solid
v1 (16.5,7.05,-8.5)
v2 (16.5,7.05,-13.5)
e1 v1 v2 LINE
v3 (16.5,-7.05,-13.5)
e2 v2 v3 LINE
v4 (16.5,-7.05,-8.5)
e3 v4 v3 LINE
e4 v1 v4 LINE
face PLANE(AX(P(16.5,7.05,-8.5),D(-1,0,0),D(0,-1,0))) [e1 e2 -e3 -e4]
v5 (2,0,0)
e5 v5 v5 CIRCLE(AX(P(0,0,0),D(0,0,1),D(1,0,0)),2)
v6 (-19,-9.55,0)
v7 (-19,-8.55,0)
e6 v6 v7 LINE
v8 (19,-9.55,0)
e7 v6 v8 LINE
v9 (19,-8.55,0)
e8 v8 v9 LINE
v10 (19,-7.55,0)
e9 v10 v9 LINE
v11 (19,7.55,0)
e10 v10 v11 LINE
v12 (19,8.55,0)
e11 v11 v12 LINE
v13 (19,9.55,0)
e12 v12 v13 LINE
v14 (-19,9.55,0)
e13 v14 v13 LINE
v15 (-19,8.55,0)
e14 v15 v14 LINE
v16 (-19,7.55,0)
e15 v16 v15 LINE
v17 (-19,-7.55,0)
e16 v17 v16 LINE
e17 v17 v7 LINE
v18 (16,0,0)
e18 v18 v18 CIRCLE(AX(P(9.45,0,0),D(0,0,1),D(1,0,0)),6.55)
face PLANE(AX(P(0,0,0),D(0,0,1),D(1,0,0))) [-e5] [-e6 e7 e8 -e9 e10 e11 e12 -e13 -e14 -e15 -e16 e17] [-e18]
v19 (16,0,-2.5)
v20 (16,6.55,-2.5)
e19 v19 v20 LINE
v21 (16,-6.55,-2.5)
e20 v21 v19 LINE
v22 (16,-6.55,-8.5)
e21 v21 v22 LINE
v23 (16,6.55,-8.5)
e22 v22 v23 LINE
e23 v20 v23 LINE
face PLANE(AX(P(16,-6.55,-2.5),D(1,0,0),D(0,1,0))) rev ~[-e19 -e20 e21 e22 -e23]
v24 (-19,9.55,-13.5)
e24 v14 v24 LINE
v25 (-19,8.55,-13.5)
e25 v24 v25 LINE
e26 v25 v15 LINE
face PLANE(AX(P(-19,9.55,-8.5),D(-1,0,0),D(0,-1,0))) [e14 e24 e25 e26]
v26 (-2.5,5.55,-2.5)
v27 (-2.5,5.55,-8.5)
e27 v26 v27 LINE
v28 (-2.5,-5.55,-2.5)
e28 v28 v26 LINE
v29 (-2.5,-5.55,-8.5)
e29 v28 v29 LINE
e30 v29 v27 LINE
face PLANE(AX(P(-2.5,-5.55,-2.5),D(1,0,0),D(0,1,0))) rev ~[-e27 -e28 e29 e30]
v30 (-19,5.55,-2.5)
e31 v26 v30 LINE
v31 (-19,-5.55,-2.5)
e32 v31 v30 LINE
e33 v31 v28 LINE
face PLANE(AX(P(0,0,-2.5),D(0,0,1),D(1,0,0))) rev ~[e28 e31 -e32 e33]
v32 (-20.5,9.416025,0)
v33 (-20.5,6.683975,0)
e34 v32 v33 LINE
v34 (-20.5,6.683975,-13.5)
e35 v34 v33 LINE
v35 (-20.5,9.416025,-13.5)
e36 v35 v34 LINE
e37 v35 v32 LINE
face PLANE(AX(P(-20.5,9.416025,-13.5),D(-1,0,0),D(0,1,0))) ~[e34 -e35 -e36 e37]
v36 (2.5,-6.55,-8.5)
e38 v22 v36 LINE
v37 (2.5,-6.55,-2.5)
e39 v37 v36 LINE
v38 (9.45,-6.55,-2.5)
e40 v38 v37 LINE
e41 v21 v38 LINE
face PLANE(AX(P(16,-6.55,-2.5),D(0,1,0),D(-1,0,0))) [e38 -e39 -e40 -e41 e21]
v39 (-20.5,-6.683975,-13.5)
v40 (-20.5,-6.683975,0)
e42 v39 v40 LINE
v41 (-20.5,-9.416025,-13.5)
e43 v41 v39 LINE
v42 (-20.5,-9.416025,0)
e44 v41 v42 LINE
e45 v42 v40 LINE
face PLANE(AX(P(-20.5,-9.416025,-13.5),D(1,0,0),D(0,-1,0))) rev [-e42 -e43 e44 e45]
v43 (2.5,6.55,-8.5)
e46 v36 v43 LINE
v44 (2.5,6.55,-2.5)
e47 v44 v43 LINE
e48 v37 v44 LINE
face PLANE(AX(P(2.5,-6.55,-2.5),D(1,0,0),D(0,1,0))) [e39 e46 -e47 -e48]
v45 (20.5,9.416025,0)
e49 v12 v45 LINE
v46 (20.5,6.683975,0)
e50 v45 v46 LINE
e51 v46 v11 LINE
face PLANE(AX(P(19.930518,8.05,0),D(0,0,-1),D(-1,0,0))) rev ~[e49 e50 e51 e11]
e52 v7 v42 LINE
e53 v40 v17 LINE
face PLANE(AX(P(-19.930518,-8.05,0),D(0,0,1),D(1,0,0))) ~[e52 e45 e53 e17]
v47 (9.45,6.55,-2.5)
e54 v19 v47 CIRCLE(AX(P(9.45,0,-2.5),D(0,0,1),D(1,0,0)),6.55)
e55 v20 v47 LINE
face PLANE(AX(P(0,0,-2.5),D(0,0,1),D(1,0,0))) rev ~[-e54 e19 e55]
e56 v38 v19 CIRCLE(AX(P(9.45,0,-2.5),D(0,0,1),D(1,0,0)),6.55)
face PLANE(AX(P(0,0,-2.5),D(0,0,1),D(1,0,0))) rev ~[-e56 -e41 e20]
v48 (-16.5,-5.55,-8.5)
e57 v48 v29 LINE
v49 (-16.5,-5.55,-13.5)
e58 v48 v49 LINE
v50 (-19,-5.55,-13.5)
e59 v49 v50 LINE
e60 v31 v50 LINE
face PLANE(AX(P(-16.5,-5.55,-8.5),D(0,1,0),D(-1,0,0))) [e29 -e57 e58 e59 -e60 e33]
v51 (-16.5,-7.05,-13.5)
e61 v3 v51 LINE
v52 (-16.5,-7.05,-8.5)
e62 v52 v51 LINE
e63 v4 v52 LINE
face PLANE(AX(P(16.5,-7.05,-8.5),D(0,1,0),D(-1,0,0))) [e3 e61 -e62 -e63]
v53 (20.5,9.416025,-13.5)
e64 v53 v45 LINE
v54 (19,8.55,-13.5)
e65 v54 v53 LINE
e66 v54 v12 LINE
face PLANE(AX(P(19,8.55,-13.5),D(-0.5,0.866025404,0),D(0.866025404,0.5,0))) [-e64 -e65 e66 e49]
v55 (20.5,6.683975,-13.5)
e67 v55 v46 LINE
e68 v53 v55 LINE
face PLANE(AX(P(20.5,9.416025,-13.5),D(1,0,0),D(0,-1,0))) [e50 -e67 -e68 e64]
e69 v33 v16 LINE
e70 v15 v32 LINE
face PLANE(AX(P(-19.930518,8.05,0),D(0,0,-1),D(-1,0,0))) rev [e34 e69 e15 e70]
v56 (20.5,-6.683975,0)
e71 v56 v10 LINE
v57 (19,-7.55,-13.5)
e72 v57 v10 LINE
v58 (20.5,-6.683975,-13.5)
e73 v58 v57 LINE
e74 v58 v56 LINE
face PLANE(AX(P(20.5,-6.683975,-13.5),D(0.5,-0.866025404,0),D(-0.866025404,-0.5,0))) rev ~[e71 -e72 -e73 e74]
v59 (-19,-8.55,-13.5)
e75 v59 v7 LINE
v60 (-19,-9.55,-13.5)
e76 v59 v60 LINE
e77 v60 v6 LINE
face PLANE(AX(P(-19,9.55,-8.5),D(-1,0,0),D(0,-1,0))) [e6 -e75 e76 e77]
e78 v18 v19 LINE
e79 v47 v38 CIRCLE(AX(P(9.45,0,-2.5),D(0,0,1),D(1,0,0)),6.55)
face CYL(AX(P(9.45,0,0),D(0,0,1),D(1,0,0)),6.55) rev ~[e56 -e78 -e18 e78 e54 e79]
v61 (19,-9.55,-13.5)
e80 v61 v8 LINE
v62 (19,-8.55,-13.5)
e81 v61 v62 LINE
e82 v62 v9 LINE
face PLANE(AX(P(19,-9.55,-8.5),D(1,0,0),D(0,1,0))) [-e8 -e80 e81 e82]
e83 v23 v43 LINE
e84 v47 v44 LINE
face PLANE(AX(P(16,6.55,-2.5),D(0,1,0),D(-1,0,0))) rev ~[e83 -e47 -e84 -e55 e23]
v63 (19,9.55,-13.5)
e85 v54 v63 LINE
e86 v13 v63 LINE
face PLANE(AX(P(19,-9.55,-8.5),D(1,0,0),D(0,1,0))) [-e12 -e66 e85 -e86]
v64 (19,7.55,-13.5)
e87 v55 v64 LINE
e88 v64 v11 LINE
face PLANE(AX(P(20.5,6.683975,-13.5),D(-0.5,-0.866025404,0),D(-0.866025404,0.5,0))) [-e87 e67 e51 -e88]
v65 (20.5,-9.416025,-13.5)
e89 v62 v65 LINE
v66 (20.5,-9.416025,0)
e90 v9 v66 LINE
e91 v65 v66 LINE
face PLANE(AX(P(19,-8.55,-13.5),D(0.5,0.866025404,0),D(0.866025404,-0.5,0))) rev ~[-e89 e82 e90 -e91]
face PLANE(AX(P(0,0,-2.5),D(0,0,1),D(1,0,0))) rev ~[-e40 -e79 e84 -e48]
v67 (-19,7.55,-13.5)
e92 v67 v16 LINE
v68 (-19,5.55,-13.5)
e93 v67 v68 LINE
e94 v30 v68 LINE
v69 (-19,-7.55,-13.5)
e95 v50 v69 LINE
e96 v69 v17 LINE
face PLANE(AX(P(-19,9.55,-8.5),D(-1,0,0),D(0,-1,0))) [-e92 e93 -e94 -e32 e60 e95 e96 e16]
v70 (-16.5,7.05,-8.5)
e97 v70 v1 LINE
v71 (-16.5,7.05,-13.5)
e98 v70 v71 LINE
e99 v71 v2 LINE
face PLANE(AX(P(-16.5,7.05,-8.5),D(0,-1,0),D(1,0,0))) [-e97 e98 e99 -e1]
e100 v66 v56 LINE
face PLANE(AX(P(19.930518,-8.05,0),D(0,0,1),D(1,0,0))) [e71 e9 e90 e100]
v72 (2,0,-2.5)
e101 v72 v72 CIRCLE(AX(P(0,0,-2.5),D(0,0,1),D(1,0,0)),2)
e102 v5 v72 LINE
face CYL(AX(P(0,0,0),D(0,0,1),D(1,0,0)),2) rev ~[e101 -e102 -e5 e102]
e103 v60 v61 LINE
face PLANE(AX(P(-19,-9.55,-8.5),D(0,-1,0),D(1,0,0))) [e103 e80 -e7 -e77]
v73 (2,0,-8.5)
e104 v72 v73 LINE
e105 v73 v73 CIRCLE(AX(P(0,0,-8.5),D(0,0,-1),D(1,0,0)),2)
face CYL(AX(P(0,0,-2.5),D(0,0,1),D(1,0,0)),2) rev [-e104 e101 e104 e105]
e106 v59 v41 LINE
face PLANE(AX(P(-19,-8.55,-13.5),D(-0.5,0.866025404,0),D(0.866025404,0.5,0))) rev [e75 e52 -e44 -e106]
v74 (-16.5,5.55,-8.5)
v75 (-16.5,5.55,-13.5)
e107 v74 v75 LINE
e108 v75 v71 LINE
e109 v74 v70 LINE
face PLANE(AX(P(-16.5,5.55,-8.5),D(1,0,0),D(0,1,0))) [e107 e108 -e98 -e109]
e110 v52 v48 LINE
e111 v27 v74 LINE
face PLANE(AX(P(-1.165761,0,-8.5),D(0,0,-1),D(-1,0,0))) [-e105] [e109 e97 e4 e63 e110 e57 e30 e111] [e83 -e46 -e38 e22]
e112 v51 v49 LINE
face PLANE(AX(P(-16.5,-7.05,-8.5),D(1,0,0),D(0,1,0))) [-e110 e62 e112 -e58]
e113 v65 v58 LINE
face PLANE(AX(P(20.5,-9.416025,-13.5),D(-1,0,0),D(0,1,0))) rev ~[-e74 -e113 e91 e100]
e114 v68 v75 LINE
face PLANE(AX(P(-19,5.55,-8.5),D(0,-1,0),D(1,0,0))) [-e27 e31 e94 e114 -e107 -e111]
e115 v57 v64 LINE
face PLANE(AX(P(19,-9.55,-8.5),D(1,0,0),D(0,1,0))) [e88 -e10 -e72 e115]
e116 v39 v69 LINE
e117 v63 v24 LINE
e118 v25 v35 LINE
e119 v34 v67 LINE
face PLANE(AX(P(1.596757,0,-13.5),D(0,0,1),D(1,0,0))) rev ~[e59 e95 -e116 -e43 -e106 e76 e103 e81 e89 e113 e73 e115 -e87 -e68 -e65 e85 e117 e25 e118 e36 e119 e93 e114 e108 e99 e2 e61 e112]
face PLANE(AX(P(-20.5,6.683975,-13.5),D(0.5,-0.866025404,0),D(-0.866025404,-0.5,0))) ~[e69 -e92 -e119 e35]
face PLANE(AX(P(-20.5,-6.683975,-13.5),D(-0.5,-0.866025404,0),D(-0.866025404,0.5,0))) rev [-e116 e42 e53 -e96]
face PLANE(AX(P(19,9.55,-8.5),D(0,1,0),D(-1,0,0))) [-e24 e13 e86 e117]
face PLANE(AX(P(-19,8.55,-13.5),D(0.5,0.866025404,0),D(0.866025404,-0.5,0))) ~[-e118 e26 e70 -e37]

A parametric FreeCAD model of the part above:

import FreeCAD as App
import Part
import Sketcher
Q = App.Units.Quantity

doc = App.newDocument("Part")
params = doc.addObject("Spreadsheet::Sheet", "Params")
for row, (alias, value) in enumerate([
    ("sketch1_diameter", "4 mm"),
    ("sketch1_diameter2", "13.1 mm"),
    ("sketch1_width", "38 mm"),
    ("sketch1_height", "19.1 mm"),
    ("pad1_length", "2.5 mm"),
    ("sketch2_diameter", "4 mm"),
    ("sketch2_width", "38 mm"),
    ("sketch2_height", "4 mm"),
    ("sketch2_width2", "16.5 mm"),
    ("sketch2_width3", "13.5 mm"),
    ("pad2_length", "6 mm"),
    ("sketch3_width", "38 mm"),
    ("sketch3_width2", "33 mm"),
    ("sketch3_height", "4 mm"),
    ("sketch3_height2", "19.1 mm"),
    ("sketch3_height3", "1.5 mm"),
    ("pad3_length", "5 mm"),
    ("sketch4_height", "1 mm"),
    ("pad4_length", "13.5 mm"),
], start=1):
    params.set(f"A{row}", alias)
    params.set(f"B{row}", "=" + value)
    params.setAlias(f"B{row}", alias)

body = doc.addObject("PartDesign::Body", "Body")

sketch1 = body.newObject("Sketcher::SketchObject", "Sketch")
sketch1.AttachmentSupport = (doc.getObject("XY_Plane"), [""])
sketch1.MapMode = "FlatFace"
sketch1.addGeometry(Part.LineSegment(App.Vector(-19, 9.55, 0), App.Vector(-19, -9.55, 0)), False)
sketch1.addGeometry(Part.LineSegment(App.Vector(-19, -9.55, 0), App.Vector(19, -9.55, 0)), False)
sketch1.addGeometry(Part.LineSegment(App.Vector(19, -9.55, 0), App.Vector(19, 9.55, 0)), False)
sketch1.addGeometry(Part.LineSegment(App.Vector(19, 9.55, 0), App.Vector(-19, 9.55, 0)), False)
sketch1.addGeometry(Part.Circle(App.Vector(0, 0, 0), App.Vector(0, 0, 1), 2), False)
sketch1.addGeometry(Part.Circle(App.Vector(9.45, 0, 0), App.Vector(0, 0, 1), 6.55), False)
sketch1.addConstraint(Sketcher.Constraint("Coincident", 0, 2, 1, 1))
sketch1.addConstraint(Sketcher.Constraint("Coincident", 1, 2, 2, 1))
sketch1.addConstraint(Sketcher.Constraint("Coincident", 2, 2, 3, 1))
sketch1.addConstraint(Sketcher.Constraint("Coincident", 3, 2, 0, 1))
sketch1.addConstraint(Sketcher.Constraint("Vertical", 0))
sketch1.addConstraint(Sketcher.Constraint("Horizontal", 1))
sketch1.addConstraint(Sketcher.Constraint("Vertical", 2))
sketch1.addConstraint(Sketcher.Constraint("Horizontal", 3))
sketch1.addConstraint(Sketcher.Constraint("Coincident", 4, 3, -1, 1))
sketch1.addConstraint(Sketcher.Constraint("Symmetric", 0, 2, 2, 2, -1, 1))
sketch1.addConstraint(Sketcher.Constraint("PointOnObject", 5, 3, -1))
sketch1.addConstraint(Sketcher.Constraint("Diameter", 4, 4.0))
sketch1.addConstraint(Sketcher.Constraint("Diameter", 5, 13.1))
sketch1.addConstraint(Sketcher.Constraint("DistanceX", 1, 1, 1, 2, 38.0))
sketch1.addConstraint(Sketcher.Constraint("DistanceY", 0, 2, 0, 1, 19.1))
sketch1.addConstraint(Sketcher.Constraint("DistanceX", -1, 1, 5, 3, 9.45))
sketch1.setExpression("Constraints[11]", "Params.sketch1_diameter")
sketch1.setExpression("Constraints[12]", "Params.sketch1_diameter2")
sketch1.setExpression("Constraints[13]", "Params.sketch1_width")
sketch1.setExpression("Constraints[14]", "Params.sketch1_height")
pad1 = body.newObject("PartDesign::Pad", "Pad")
pad1.Profile = sketch1
pad1.setExpression("Length", "Params.pad1_length")
pad1.Reversed = True

sketch2 = body.newObject("Sketcher::SketchObject", "Sketch001")
sketch2.AttachmentSupport = (doc.getObject("XY_Plane"), [""])
sketch2.MapMode = "FlatFace"
sketch2.AttachmentOffset = App.Placement(App.Vector(0, 0, -2.5), App.Rotation())
sketch2.addGeometry(Part.LineSegment(App.Vector(19, -9.55, 0), App.Vector(-19, -9.55, 0)), False)
sketch2.addGeometry(Part.LineSegment(App.Vector(-19, -9.55, 0), App.Vector(-19, -5.55, 0)), False)
sketch2.addGeometry(Part.LineSegment(App.Vector(-19, -5.55, 0), App.Vector(-2.5, -5.55, 0)), False)
sketch2.addGeometry(Part.LineSegment(App.Vector(-2.5, -5.55, 0), App.Vector(-2.5, 5.55, 0)), False)
sketch2.addGeometry(Part.LineSegment(App.Vector(-2.5, 5.55, 0), App.Vector(-19, 5.55, 0)), False)
sketch2.addGeometry(Part.LineSegment(App.Vector(-19, 5.55, 0), App.Vector(-19, 9.55, 0)), False)
sketch2.addGeometry(Part.LineSegment(App.Vector(-19, 9.55, 0), App.Vector(19, 9.55, 0)), False)
sketch2.addGeometry(Part.LineSegment(App.Vector(19, 9.55, 0), App.Vector(19, -9.55, 0)), False)
sketch2.addGeometry(Part.Circle(App.Vector(0, 0, 0), App.Vector(0, 0, 1), 2), False)
sketch2.addGeometry(Part.LineSegment(App.Vector(2.5, -6.55, 0), App.Vector(16, -6.55, 0)), False)
sketch2.addGeometry(Part.LineSegment(App.Vector(16, -6.55, 0), App.Vector(16, 6.55, 0)), False)
sketch2.addGeometry(Part.LineSegment(App.Vector(16, 6.55, 0), App.Vector(2.5, 6.55, 0)), False)
sketch2.addGeometry(Part.LineSegment(App.Vector(2.5, 6.55, 0), App.Vector(2.5, -6.55, 0)), False)
sketch2.addConstraint(Sketcher.Constraint("Coincident", 0, 2, 1, 1))
sketch2.addConstraint(Sketcher.Constraint("Coincident", 1, 2, 2, 1))
sketch2.addConstraint(Sketcher.Constraint("Coincident", 2, 2, 3, 1))
sketch2.addConstraint(Sketcher.Constraint("Coincident", 3, 2, 4, 1))
sketch2.addConstraint(Sketcher.Constraint("Coincident", 4, 2, 5, 1))
sketch2.addConstraint(Sketcher.Constraint("Coincident", 5, 2, 6, 1))
sketch2.addConstraint(Sketcher.Constraint("Coincident", 6, 2, 7, 1))
sketch2.addConstraint(Sketcher.Constraint("Coincident", 7, 2, 0, 1))
sketch2.addConstraint(Sketcher.Constraint("Coincident", 9, 2, 10, 1))
sketch2.addConstraint(Sketcher.Constraint("Coincident", 10, 2, 11, 1))
sketch2.addConstraint(Sketcher.Constraint("Coincident", 11, 2, 12, 1))
sketch2.addConstraint(Sketcher.Constraint("Coincident", 12, 2, 9, 1))
sketch2.addConstraint(Sketcher.Constraint("Horizontal", 0))
sketch2.addConstraint(Sketcher.Constraint("Vertical", 1))
sketch2.addConstraint(Sketcher.Constraint("Horizontal", 2))
sketch2.addConstraint(Sketcher.Constraint("Vertical", 3))
sketch2.addConstraint(Sketcher.Constraint("Horizontal", 4))
sketch2.addConstraint(Sketcher.Constraint("Vertical", 5))
sketch2.addConstraint(Sketcher.Constraint("Horizontal", 6))
sketch2.addConstraint(Sketcher.Constraint("Vertical", 7))
sketch2.addConstraint(Sketcher.Constraint("Horizontal", 9))
sketch2.addConstraint(Sketcher.Constraint("Vertical", 10))
sketch2.addConstraint(Sketcher.Constraint("Horizontal", 11))
sketch2.addConstraint(Sketcher.Constraint("Vertical", 12))
sketch2.addConstraint(Sketcher.Constraint("Coincident", 8, 3, -1, 1))
sketch2.addConstraint(Sketcher.Constraint("Symmetric", 0, 2, 6, 2, -1, 1))
sketch2.addConstraint(Sketcher.Constraint("Symmetric", 1, 2, 4, 2, -1))
sketch2.addConstraint(Sketcher.Constraint("Diameter", 8, 4.0))
sketch2.addConstraint(Sketcher.Constraint("DistanceX", 0, 2, 0, 1, 38.0))
sketch2.addConstraint(Sketcher.Constraint("DistanceY", 1, 1, 1, 2, 4.0))
sketch2.addConstraint(Sketcher.Constraint("DistanceX", 2, 1, 2, 2, 16.5))
sketch2.addConstraint(Sketcher.Constraint("DistanceX", 9, 1, 9, 2, 13.5))
sketch2.addConstraint(Sketcher.Constraint("DistanceY", 3, 1, 3, 2, 11.1))
sketch2.addConstraint(Sketcher.Constraint("DistanceY", 10, 1, 10, 2, 13.1))
sketch2.addConstraint(Sketcher.Constraint("DistanceX", -1, 1, 9, 2, 16.0))
sketch2.addConstraint(Sketcher.Constraint("DistanceY", 7, 2, 9, 2, 3.0))
sketch2.setExpression("Constraints[27]", "Params.sketch2_diameter")
sketch2.setExpression("Constraints[28]", "Params.sketch2_width")
sketch2.setExpression("Constraints[29]", "Params.sketch2_height")
sketch2.setExpression("Constraints[30]", "Params.sketch2_width2")
sketch2.setExpression("Constraints[31]", "Params.sketch2_width3")
pad2 = body.newObject("PartDesign::Pad", "Pad001")
pad2.Profile = sketch2
pad2.setExpression("Length", "Params.pad2_length")
pad2.Reversed = True

sketch3 = body.newObject("Sketcher::SketchObject", "Sketch002")
sketch3.AttachmentSupport = (doc.getObject("XY_Plane"), [""])
sketch3.MapMode = "FlatFace"
sketch3.AttachmentOffset = App.Placement(App.Vector(0, 0, -8.5), App.Rotation())
sketch3.addGeometry(Part.LineSegment(App.Vector(-16.5, 5.55, 0), App.Vector(-19, 5.55, 0)), False)
sketch3.addGeometry(Part.LineSegment(App.Vector(-19, 5.55, 0), App.Vector(-19, 9.55, 0)), False)
sketch3.addGeometry(Part.LineSegment(App.Vector(-19, 9.55, 0), App.Vector(19, 9.55, 0)), False)
sketch3.addGeometry(Part.LineSegment(App.Vector(19, 9.55, 0), App.Vector(19, -9.55, 0)), False)
sketch3.addGeometry(Part.LineSegment(App.Vector(19, -9.55, 0), App.Vector(-19, -9.55, 0)), False)
sketch3.addGeometry(Part.LineSegment(App.Vector(-19, -9.55, 0), App.Vector(-19, -5.55, 0)), False)
sketch3.addGeometry(Part.LineSegment(App.Vector(-19, -5.55, 0), App.Vector(-16.5, -5.55, 0)), False)
sketch3.addGeometry(Part.LineSegment(App.Vector(-16.5, -5.55, 0), App.Vector(-16.5, -7.05, 0)), False)
sketch3.addGeometry(Part.LineSegment(App.Vector(-16.5, -7.05, 0), App.Vector(16.5, -7.05, 0)), False)
sketch3.addGeometry(Part.LineSegment(App.Vector(16.5, -7.05, 0), App.Vector(16.5, 7.05, 0)), False)
sketch3.addGeometry(Part.LineSegment(App.Vector(16.5, 7.05, 0), App.Vector(-16.5, 7.05, 0)), False)
sketch3.addGeometry(Part.LineSegment(App.Vector(-16.5, 7.05, 0), App.Vector(-16.5, 5.55, 0)), False)
sketch3.addConstraint(Sketcher.Constraint("Coincident", 0, 2, 1, 1))
sketch3.addConstraint(Sketcher.Constraint("Coincident", 1, 2, 2, 1))
sketch3.addConstraint(Sketcher.Constraint("Coincident", 2, 2, 3, 1))
sketch3.addConstraint(Sketcher.Constraint("Coincident", 3, 2, 4, 1))
sketch3.addConstraint(Sketcher.Constraint("Coincident", 4, 2, 5, 1))
sketch3.addConstraint(Sketcher.Constraint("Coincident", 5, 2, 6, 1))
sketch3.addConstraint(Sketcher.Constraint("Coincident", 6, 2, 7, 1))
sketch3.addConstraint(Sketcher.Constraint("Coincident", 7, 2, 8, 1))
sketch3.addConstraint(Sketcher.Constraint("Coincident", 8, 2, 9, 1))
sketch3.addConstraint(Sketcher.Constraint("Coincident", 9, 2, 10, 1))
sketch3.addConstraint(Sketcher.Constraint("Coincident", 10, 2, 11, 1))
sketch3.addConstraint(Sketcher.Constraint("Coincident", 11, 2, 0, 1))
sketch3.addConstraint(Sketcher.Constraint("Horizontal", 0))
sketch3.addConstraint(Sketcher.Constraint("Vertical", 1))
sketch3.addConstraint(Sketcher.Constraint("Horizontal", 2))
sketch3.addConstraint(Sketcher.Constraint("Vertical", 3))
sketch3.addConstraint(Sketcher.Constraint("Horizontal", 4))
sketch3.addConstraint(Sketcher.Constraint("Vertical", 5))
sketch3.addConstraint(Sketcher.Constraint("Horizontal", 6))
sketch3.addConstraint(Sketcher.Constraint("Vertical", 7))
sketch3.addConstraint(Sketcher.Constraint("Horizontal", 8))
sketch3.addConstraint(Sketcher.Constraint("Vertical", 9))
sketch3.addConstraint(Sketcher.Constraint("Horizontal", 10))
sketch3.addConstraint(Sketcher.Constraint("Vertical", 11))
sketch3.addConstraint(Sketcher.Constraint("Symmetric", 1, 2, 3, 2, -1, 1))
sketch3.addConstraint(Sketcher.Constraint("Symmetric", 7, 2, 9, 2, -1, 1))
sketch3.addConstraint(Sketcher.Constraint("Symmetric", 0, 2, 5, 2, -1))
sketch3.addConstraint(Sketcher.Constraint("Vertical", 7, 2, 10, 2))
sketch3.addConstraint(Sketcher.Constraint("DistanceX", 2, 1, 2, 2, 38.0))
sketch3.addConstraint(Sketcher.Constraint("DistanceX", 8, 1, 8, 2, 33.0))
sketch3.addConstraint(Sketcher.Constraint("DistanceY", 1, 1, 1, 2, 4.0))
sketch3.addConstraint(Sketcher.Constraint("DistanceY", 3, 2, 3, 1, 19.1))
sketch3.addConstraint(Sketcher.Constraint("DistanceY", 7, 2, 7, 1, 1.5))
sketch3.setExpression("Constraints[28]", "Params.sketch3_width")
sketch3.setExpression("Constraints[29]", "Params.sketch3_width2")
sketch3.setExpression("Constraints[30]", "Params.sketch3_height")
sketch3.setExpression("Constraints[31]", "Params.sketch3_height2")
sketch3.setExpression("Constraints[32]", "Params.sketch3_height3")
pad3 = body.newObject("PartDesign::Pad", "Pad002")
pad3.Profile = sketch3
pad3.setExpression("Length", "Params.pad3_length")
pad3.Reversed = True

sketch4 = body.newObject("Sketcher::SketchObject", "Sketch003")
sketch4.AttachmentSupport = (doc.getObject("XY_Plane"), [""])
sketch4.MapMode = "FlatFace"
sketch4.AttachmentOffset = App.Placement(App.Vector(0, 0, -13.5), App.Rotation())
sketch4.addGeometry(Part.LineSegment(App.Vector(19, 8.55, 0), App.Vector(20.5, 9.416025, 0)), False)
sketch4.addGeometry(Part.LineSegment(App.Vector(20.5, 9.416025, 0), App.Vector(20.5, 6.683975, 0)), False)
sketch4.addGeometry(Part.LineSegment(App.Vector(20.5, 6.683975, 0), App.Vector(19, 7.55, 0)), False)
sketch4.addGeometry(Part.LineSegment(App.Vector(19, 7.55, 0), App.Vector(19, 8.55, 0)), False)
sketch4.addGeometry(Part.LineSegment(App.Vector(19, -8.55, 0), App.Vector(19, -7.55, 0)), False)
sketch4.addGeometry(Part.LineSegment(App.Vector(19, -7.55, 0), App.Vector(20.5, -6.683975, 0)), False)
sketch4.addGeometry(Part.LineSegment(App.Vector(20.5, -6.683975, 0), App.Vector(20.5, -9.416025, 0)), False)
sketch4.addGeometry(Part.LineSegment(App.Vector(20.5, -9.416025, 0), App.Vector(19, -8.55, 0)), False)
sketch4.addConstraint(Sketcher.Constraint("Coincident", 0, 2, 1, 1))
sketch4.addConstraint(Sketcher.Constraint("Coincident", 1, 2, 2, 1))
sketch4.addConstraint(Sketcher.Constraint("Coincident", 2, 2, 3, 1))
sketch4.addConstraint(Sketcher.Constraint("Coincident", 3, 2, 0, 1))
sketch4.addConstraint(Sketcher.Constraint("Coincident", 4, 2, 5, 1))
sketch4.addConstraint(Sketcher.Constraint("Coincident", 5, 2, 6, 1))
sketch4.addConstraint(Sketcher.Constraint("Coincident", 6, 2, 7, 1))
sketch4.addConstraint(Sketcher.Constraint("Coincident", 7, 2, 4, 1))
sketch4.addConstraint(Sketcher.Constraint("Vertical", 1))
sketch4.addConstraint(Sketcher.Constraint("Vertical", 3))
sketch4.addConstraint(Sketcher.Constraint("Vertical", 4))
sketch4.addConstraint(Sketcher.Constraint("Vertical", 6))
sketch4.addConstraint(Sketcher.Constraint("Symmetric", 2, 2, 4, 2, -1))
sketch4.addConstraint(Sketcher.Constraint("Symmetric", 1, 2, 5, 2, -1))
sketch4.addConstraint(Sketcher.Constraint("Parallel", 0, 5))
sketch4.addConstraint(Sketcher.Constraint("Parallel", 2, 7))
sketch4.addConstraint(Sketcher.Constraint("Equal", 3, 4))
sketch4.addConstraint(Sketcher.Constraint("DistanceY", 3, 1, 3, 2, 1.0))
sketch4.addConstraint(Sketcher.Constraint("Angle", 0, Q("30 deg")))
sketch4.addConstraint(Sketcher.Constraint("DistanceX", -1, 1, 2, 2, 19.0))
sketch4.addConstraint(Sketcher.Constraint("DistanceX", -1, 1, 0, 2, 20.5))
sketch4.addConstraint(Sketcher.Constraint("DistanceY", 4, 2, 2, 2, 15.1))
sketch4.setExpression("Constraints[17]", "Params.sketch4_height")
pad4 = body.newObject("PartDesign::Pad", "Pad003")
pad4.Profile = sketch4
pad4.setExpression("Length", "Params.pad4_length")
doc.recompute()

mirrored = body.newObject("PartDesign::Mirrored", "Mirrored")
mirrored.Originals = [pad4]
mirrored.MirrorPlane = (doc.getObject("YZ_Plane"), [""])
body.Tip = mirrored

doc.recompute()
